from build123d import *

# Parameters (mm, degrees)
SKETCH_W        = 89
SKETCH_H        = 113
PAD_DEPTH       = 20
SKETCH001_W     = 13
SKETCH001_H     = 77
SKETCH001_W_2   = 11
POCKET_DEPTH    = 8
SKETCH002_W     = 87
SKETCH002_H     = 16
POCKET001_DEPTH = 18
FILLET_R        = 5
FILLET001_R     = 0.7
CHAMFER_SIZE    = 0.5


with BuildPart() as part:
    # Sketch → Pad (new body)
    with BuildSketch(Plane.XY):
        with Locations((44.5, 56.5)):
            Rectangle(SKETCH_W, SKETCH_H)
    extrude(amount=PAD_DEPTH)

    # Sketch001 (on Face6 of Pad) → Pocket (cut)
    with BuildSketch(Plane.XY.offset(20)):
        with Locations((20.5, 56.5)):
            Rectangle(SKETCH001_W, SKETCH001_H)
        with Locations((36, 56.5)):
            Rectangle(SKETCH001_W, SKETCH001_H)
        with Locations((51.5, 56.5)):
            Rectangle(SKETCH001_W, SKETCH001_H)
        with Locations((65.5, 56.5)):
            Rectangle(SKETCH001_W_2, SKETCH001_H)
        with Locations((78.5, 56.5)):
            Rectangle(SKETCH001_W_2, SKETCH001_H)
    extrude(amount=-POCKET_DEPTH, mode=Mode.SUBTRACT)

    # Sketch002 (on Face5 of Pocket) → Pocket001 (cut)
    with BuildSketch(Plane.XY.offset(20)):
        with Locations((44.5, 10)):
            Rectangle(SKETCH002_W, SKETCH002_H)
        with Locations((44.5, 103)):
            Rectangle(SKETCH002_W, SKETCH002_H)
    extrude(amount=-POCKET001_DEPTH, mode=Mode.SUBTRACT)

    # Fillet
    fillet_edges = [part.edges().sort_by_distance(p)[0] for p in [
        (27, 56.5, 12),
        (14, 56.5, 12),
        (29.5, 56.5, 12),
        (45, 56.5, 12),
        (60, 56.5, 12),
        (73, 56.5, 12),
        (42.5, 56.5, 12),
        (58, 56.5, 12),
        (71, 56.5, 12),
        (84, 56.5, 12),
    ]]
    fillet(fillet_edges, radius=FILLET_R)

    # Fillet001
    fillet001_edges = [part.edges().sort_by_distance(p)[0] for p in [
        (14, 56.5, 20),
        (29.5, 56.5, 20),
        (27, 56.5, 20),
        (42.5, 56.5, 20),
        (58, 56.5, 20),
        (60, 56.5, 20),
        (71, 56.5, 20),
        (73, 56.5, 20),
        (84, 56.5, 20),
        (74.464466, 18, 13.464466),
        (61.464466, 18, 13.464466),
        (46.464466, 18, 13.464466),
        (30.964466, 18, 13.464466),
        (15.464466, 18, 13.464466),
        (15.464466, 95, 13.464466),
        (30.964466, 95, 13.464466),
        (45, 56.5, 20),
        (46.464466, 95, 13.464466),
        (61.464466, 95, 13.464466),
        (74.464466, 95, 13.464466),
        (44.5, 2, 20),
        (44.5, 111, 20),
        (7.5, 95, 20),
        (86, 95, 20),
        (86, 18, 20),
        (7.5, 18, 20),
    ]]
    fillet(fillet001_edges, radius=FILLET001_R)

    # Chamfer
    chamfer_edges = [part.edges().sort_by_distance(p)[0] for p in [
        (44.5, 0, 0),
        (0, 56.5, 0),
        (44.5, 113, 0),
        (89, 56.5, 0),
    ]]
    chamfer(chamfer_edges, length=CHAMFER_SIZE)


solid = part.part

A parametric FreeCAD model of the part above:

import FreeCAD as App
import Part
import Sketcher
from FreeCAD import Vector


def edges_at(feature, points):
    """Names of the edges that pass closest to the given points."""
    edges = feature.Shape.Edges
    near = lambda p: min(range(len(edges)), key=lambda i: edges[i].distToShape(Part.Vertex(*p))[0])
    return sorted({f"Edge{near(p) + 1}" for p in points})

doc = App.newDocument("Part")
body = doc.addObject("PartDesign::Body", "Body")

sketch1 = body.newObject("Sketcher::SketchObject", "Sketch")
sketch1.AttachmentSupport = (doc.getObject("XY_Plane"), [""])
sketch1.MapMode = "FlatFace"
sketch1.addGeometry(Part.LineSegment(Vector(0, 113, 0), Vector(0, 0, 0)), False)
sketch1.addGeometry(Part.LineSegment(Vector(0, 0, 0), Vector(89, 0, 0)), False)
sketch1.addGeometry(Part.LineSegment(Vector(89, 0, 0), Vector(89, 113, 0)), False)
sketch1.addGeometry(Part.LineSegment(Vector(89, 113, 0), Vector(0, 113, 0)), False)
sketch1.addConstraint(Sketcher.Constraint("Coincident", 0, 2, 1, 1))
sketch1.addConstraint(Sketcher.Constraint("Coincident", 1, 2, 2, 1))
sketch1.addConstraint(Sketcher.Constraint("Coincident", 2, 2, 3, 1))
sketch1.addConstraint(Sketcher.Constraint("Coincident", 3, 2, 0, 1))
sketch1.addConstraint(Sketcher.Constraint("Vertical", 0))
sketch1.addConstraint(Sketcher.Constraint("Horizontal", 1))
sketch1.addConstraint(Sketcher.Constraint("Vertical", 2))
sketch1.addConstraint(Sketcher.Constraint("Horizontal", 3))
sketch1.addConstraint(Sketcher.Constraint("Coincident", 0, 2, -1, 1))
sketch1.addConstraint(Sketcher.Constraint("DistanceX", 1, 1, 1, 2, 89.0))
sketch1.addConstraint(Sketcher.Constraint("DistanceY", 0, 2, 0, 1, 113.0))
pad1 = body.newObject("PartDesign::Pad", "Pad")
pad1.Profile = sketch1
pad1.Length = 20

sketch2 = body.newObject("Sketcher::SketchObject", "Sketch001")
sketch2.AttachmentSupport = (doc.getObject("XY_Plane"), [""])
sketch2.MapMode = "FlatFace"
sketch2.AttachmentOffset = App.Placement(Vector(0, 0, 20), App.Rotation())
sketch2.addGeometry(Part.LineSegment(Vector(14, 95, 0), Vector(14, 18, 0)), False)
sketch2.addGeometry(Part.LineSegment(Vector(14, 18, 0), Vector(27, 18, 0)), False)
sketch2.addGeometry(Part.LineSegment(Vector(27, 18, 0), Vector(27, 95, 0)), False)
sketch2.addGeometry(Part.LineSegment(Vector(27, 95, 0), Vector(14, 95, 0)), False)
sketch2.addGeometry(Part.LineSegment(Vector(29.5, 95, 0), Vector(29.5, 18, 0)), False)
sketch2.addGeometry(Part.LineSegment(Vector(29.5, 18, 0), Vector(42.5, 18, 0)), False)
sketch2.addGeometry(Part.LineSegment(Vector(42.5, 18, 0), Vector(42.5, 95, 0)), False)
sketch2.addGeometry(Part.LineSegment(Vector(42.5, 95, 0), Vector(29.5, 95, 0)), False)
sketch2.addGeometry(Part.LineSegment(Vector(45, 95, 0), Vector(45, 18, 0)), False)
sketch2.addGeometry(Part.LineSegment(Vector(45, 18, 0), Vector(58, 18, 0)), False)
sketch2.addGeometry(Part.LineSegment(Vector(58, 18, 0), Vector(58, 95, 0)), False)
sketch2.addGeometry(Part.LineSegment(Vector(58, 95, 0), Vector(45, 95, 0)), False)
sketch2.addGeometry(Part.LineSegment(Vector(60, 95, 0), Vector(60, 18, 0)), False)
sketch2.addGeometry(Part.LineSegment(Vector(60, 18, 0), Vector(71, 18, 0)), False)
sketch2.addGeometry(Part.LineSegment(Vector(71, 18, 0), Vector(71, 95, 0)), False)
sketch2.addGeometry(Part.LineSegment(Vector(71, 95, 0), Vector(60, 95, 0)), False)
sketch2.addGeometry(Part.LineSegment(Vector(73, 95, 0), Vector(73, 18, 0)), False)
sketch2.addGeometry(Part.LineSegment(Vector(73, 18, 0), Vector(84, 18, 0)), False)
sketch2.addGeometry(Part.LineSegment(Vector(84, 18, 0), Vector(84, 95, 0)), False)
sketch2.addGeometry(Part.LineSegment(Vector(84, 95, 0), Vector(73, 95, 0)), False)
sketch2.addConstraint(Sketcher.Constraint("Coincident", 0, 2, 1, 1))
sketch2.addConstraint(Sketcher.Constraint("Coincident", 1, 2, 2, 1))
sketch2.addConstraint(Sketcher.Constraint("Coincident", 2, 2, 3, 1))
sketch2.addConstraint(Sketcher.Constraint("Coincident", 3, 2, 0, 1))
sketch2.addConstraint(Sketcher.Constraint("Coincident", 4, 2, 5, 1))
sketch2.addConstraint(Sketcher.Constraint("Coincident", 5, 2, 6, 1))
sketch2.addConstraint(Sketcher.Constraint("Coincident", 6, 2, 7, 1))
sketch2.addConstraint(Sketcher.Constraint("Coincident", 7, 2, 4, 1))
sketch2.addConstraint(Sketcher.Constraint("Coincident", 8, 2, 9, 1))
sketch2.addConstraint(Sketcher.Constraint("Coincident", 9, 2, 10, 1))
sketch2.addConstraint(Sketcher.Constraint("Coincident", 10, 2, 11, 1))
sketch2.addConstraint(Sketcher.Constraint("Coincident", 11, 2, 8, 1))
sketch2.addConstraint(Sketcher.Constraint("Coincident", 12, 2, 13, 1))
sketch2.addConstraint(Sketcher.Constraint("Coincident", 13, 2, 14, 1))
sketch2.addConstraint(Sketcher.Constraint("Coincident", 14, 2, 15, 1))
sketch2.addConstraint(Sketcher.Constraint("Coincident", 15, 2, 12, 1))
sketch2.addConstraint(Sketcher.Constraint("Coincident", 16, 2, 17, 1))
sketch2.addConstraint(Sketcher.Constraint("Coincident", 17, 2, 18, 1))
sketch2.addConstraint(Sketcher.Constraint("Coincident", 18, 2, 19, 1))
sketch2.addConstraint(Sketcher.Constraint("Coincident", 19, 2, 16, 1))
sketch2.addConstraint(Sketcher.Constraint("Vertical", 0))
sketch2.addConstraint(Sketcher.Constraint("Horizontal", 1))
sketch2.addConstraint(Sketcher.Constraint("Vertical", 2))
sketch2.addConstraint(Sketcher.Constraint("Horizontal", 3))
sketch2.addConstraint(Sketcher.Constraint("Vertical", 4))
sketch2.addConstraint(Sketcher.Constraint("Horizontal", 5))
sketch2.addConstraint(Sketcher.Constraint("Vertical", 6))
sketch2.addConstraint(Sketcher.Constraint("Horizontal", 7))
sketch2.addConstraint(Sketcher.Constraint("Vertical", 8))
sketch2.addConstraint(Sketcher.Constraint("Horizontal", 9))
sketch2.addConstraint(Sketcher.Constraint("Vertical", 10))
sketch2.addConstraint(Sketcher.Constraint("Horizontal", 11))
sketch2.addConstraint(Sketcher.Constraint("Vertical", 12))
sketch2.addConstraint(Sketcher.Constraint("Horizontal", 13))
sketch2.addConstraint(Sketcher.Constraint("Vertical", 14))
sketch2.addConstraint(Sketcher.Constraint("Horizontal", 15))
sketch2.addConstraint(Sketcher.Constraint("Vertical", 16))
sketch2.addConstraint(Sketcher.Constraint("Horizontal", 17))
sketch2.addConstraint(Sketcher.Constraint("Vertical", 18))
sketch2.addConstraint(Sketcher.Constraint("Horizontal", 19))
sketch2.addConstraint(Sketcher.Constraint("Horizontal", 1, 2, 4, 2))
sketch2.addConstraint(Sketcher.Constraint("Horizontal", 3, 2, 6, 2))
sketch2.addConstraint(Sketcher.Constraint("Horizontal", 5, 2, 8, 2))
sketch2.addConstraint(Sketcher.Constraint("Horizontal", 7, 2, 10, 2))
sketch2.addConstraint(Sketcher.Constraint("Horizontal", 9, 2, 12, 2))
sketch2.addConstraint(Sketcher.Constraint("Horizontal", 11, 2, 14, 2))
sketch2.addConstraint(Sketcher.Constraint("Horizontal", 13, 2, 16, 2))
sketch2.addConstraint(Sketcher.Constraint("Horizontal", 15, 2, 18, 2))
sketch2.addConstraint(Sketcher.Constraint("Equal", 3, 5))
sketch2.addConstraint(Sketcher.Constraint("Equal", 7, 9))
sketch2.addConstraint(Sketcher.Constraint("Equal", 15, 17))
sketch2.addConstraint(Sketcher.Constraint("DistanceX", 1, 1, 1, 2, 13.0))
sketch2.addConstraint(Sketcher.Constraint("DistanceX", 13, 1, 13, 2, 11.0))
sketch2.addConstraint(Sketcher.Constraint("DistanceY", 0, 2, 0, 1, 77.0))
sketch2.addConstraint(Sketcher.Constraint("DistanceX", -1, 1, 0, 2, 14.0))
sketch2.addConstraint(Sketcher.Constraint("DistanceY", -1, 1, 0, 2, 18.0))
sketch2.addConstraint(Sketcher.Constraint("DistanceX", -1, 1, 8, 2, 45.0))
sketch2.addConstraint(Sketcher.Constraint("DistanceX", -1, 1, 12, 2, 60.0))
sketch2.addConstraint(Sketcher.Constraint("DistanceX", -1, 1, 16, 2, 73.0))
sketch2.addConstraint(Sketcher.Constraint("DistanceX", -1, 1, 4, 2, 29.5))
pocket1 = body.newObject("PartDesign::Pocket", "Pocket")
pocket1.Profile = sketch2
pocket1.Length = 8

sketch3 = body.newObject("Sketcher::SketchObject", "Sketch002")
sketch3.AttachmentSupport = (doc.getObject("XY_Plane"), [""])
sketch3.MapMode = "FlatFace"
sketch3.AttachmentOffset = App.Placement(Vector(0, 0, 20), App.Rotation())
sketch3.addGeometry(Part.LineSegment(Vector(1, 18, 0), Vector(1, 2, 0)), False)
sketch3.addGeometry(Part.LineSegment(Vector(1, 2, 0), Vector(88, 2, 0)), False)
sketch3.addGeometry(Part.LineSegment(Vector(88, 2, 0), Vector(88, 18, 0)), False)
sketch3.addGeometry(Part.LineSegment(Vector(88, 18, 0), Vector(1, 18, 0)), False)
sketch3.addGeometry(Part.LineSegment(Vector(1, 111, 0), Vector(1, 95, 0)), False)
sketch3.addGeometry(Part.LineSegment(Vector(1, 95, 0), Vector(88, 95, 0)), False)
sketch3.addGeometry(Part.LineSegment(Vector(88, 95, 0), Vector(88, 111, 0)), False)
sketch3.addGeometry(Part.LineSegment(Vector(88, 111, 0), Vector(1, 111, 0)), False)
sketch3.addConstraint(Sketcher.Constraint("Coincident", 0, 2, 1, 1))
sketch3.addConstraint(Sketcher.Constraint("Coincident", 1, 2, 2, 1))
sketch3.addConstraint(Sketcher.Constraint("Coincident", 2, 2, 3, 1))
sketch3.addConstraint(Sketcher.Constraint("Coincident", 3, 2, 0, 1))
sketch3.addConstraint(Sketcher.Constraint("Coincident", 4, 2, 5, 1))
sketch3.addConstraint(Sketcher.Constraint("Coincident", 5, 2, 6, 1))
sketch3.addConstraint(Sketcher.Constraint("Coincident", 6, 2, 7, 1))
sketch3.addConstraint(Sketcher.Constraint("Coincident", 7, 2, 4, 1))
sketch3.addConstraint(Sketcher.Constraint("Vertical", 0))
sketch3.addConstraint(Sketcher.Constraint("Horizontal", 1))
sketch3.addConstraint(Sketcher.Constraint("Vertical", 2))
sketch3.addConstraint(Sketcher.Constraint("Horizontal", 3))
sketch3.addConstraint(Sketcher.Constraint("Vertical", 4))
sketch3.addConstraint(Sketcher.Constraint("Horizontal", 5))
sketch3.addConstraint(Sketcher.Constraint("Vertical", 6))
sketch3.addConstraint(Sketcher.Constraint("Horizontal", 7))
sketch3.addConstraint(Sketcher.Constraint("Vertical", 3, 2, 4, 2))
sketch3.addConstraint(Sketcher.Constraint("Vertical", 2, 2, 5, 2))
sketch3.addConstraint(Sketcher.Constraint("Equal", 2, 4))
sketch3.addConstraint(Sketcher.Constraint("DistanceX", 1, 1, 1, 2, 87.0))
sketch3.addConstraint(Sketcher.Constraint("DistanceY", 0, 2, 0, 1, 16.0))
sketch3.addConstraint(Sketcher.Constraint("DistanceX", -1, 1, 0, 2, 1.0))
sketch3.addConstraint(Sketcher.Constraint("DistanceY", -1, 1, 0, 2, 2.0))
sketch3.addConstraint(Sketcher.Constraint("DistanceY", -1, 1, 4, 2, 95.0))
pocket2 = body.newObject("PartDesign::Pocket", "Pocket001")
pocket2.Profile = sketch3
pocket2.Length = 18
doc.recompute()

fillet = body.newObject("PartDesign::Fillet", "Fillet")
fillet.Base = (pocket2, edges_at(pocket2, [
    (27, 56.5, 12),
    (14, 56.5, 12),
    (29.5, 56.5, 12),
    (45, 56.5, 12),
    (60, 56.5, 12),
    (73, 56.5, 12),
    (42.5, 56.5, 12),
    (58, 56.5, 12),
    (71, 56.5, 12),
    (84, 56.5, 12),
]))
fillet.Radius = 5
doc.recompute()

fillet2 = body.newObject("PartDesign::Fillet", "Fillet001")
fillet2.Base = (fillet, edges_at(fillet, [
    (14, 56.5, 20),
    (29.5, 56.5, 20),
    (27, 56.5, 20),
    (42.5, 56.5, 20),
    (58, 56.5, 20),
    (60, 56.5, 20),
    (71, 56.5, 20),
    (73, 56.5, 20),
    (84, 56.5, 20),
    (74.464, 18, 13.464),
    (61.464, 18, 13.464),
    (46.464, 18, 13.464),
    (30.964, 18, 13.464),
    (15.464, 18, 13.464),
    (15.464, 95, 13.464),
    (30.964, 95, 13.464),
    (45, 56.5, 20),
    (46.464, 95, 13.464),
    (61.464, 95, 13.464),
    (74.464, 95, 13.464),
    (44.5, 2, 20),
    (44.5, 111, 20),
    (7.5, 95, 20),
    (86, 95, 20),
    (86, 18, 20),
    (7.5, 18, 20),
]))
fillet2.Radius = 0.7
doc.recompute()

chamfer = body.newObject("PartDesign::Chamfer", "Chamfer")
chamfer.Base = (fillet2, edges_at(fillet2, [
    (44.5, 0, 0),
    (0, 56.5, 0),
    (44.5, 113, 0),
    (89, 56.5, 0),
]))
chamfer.Size = 0.5

doc.recompute()
